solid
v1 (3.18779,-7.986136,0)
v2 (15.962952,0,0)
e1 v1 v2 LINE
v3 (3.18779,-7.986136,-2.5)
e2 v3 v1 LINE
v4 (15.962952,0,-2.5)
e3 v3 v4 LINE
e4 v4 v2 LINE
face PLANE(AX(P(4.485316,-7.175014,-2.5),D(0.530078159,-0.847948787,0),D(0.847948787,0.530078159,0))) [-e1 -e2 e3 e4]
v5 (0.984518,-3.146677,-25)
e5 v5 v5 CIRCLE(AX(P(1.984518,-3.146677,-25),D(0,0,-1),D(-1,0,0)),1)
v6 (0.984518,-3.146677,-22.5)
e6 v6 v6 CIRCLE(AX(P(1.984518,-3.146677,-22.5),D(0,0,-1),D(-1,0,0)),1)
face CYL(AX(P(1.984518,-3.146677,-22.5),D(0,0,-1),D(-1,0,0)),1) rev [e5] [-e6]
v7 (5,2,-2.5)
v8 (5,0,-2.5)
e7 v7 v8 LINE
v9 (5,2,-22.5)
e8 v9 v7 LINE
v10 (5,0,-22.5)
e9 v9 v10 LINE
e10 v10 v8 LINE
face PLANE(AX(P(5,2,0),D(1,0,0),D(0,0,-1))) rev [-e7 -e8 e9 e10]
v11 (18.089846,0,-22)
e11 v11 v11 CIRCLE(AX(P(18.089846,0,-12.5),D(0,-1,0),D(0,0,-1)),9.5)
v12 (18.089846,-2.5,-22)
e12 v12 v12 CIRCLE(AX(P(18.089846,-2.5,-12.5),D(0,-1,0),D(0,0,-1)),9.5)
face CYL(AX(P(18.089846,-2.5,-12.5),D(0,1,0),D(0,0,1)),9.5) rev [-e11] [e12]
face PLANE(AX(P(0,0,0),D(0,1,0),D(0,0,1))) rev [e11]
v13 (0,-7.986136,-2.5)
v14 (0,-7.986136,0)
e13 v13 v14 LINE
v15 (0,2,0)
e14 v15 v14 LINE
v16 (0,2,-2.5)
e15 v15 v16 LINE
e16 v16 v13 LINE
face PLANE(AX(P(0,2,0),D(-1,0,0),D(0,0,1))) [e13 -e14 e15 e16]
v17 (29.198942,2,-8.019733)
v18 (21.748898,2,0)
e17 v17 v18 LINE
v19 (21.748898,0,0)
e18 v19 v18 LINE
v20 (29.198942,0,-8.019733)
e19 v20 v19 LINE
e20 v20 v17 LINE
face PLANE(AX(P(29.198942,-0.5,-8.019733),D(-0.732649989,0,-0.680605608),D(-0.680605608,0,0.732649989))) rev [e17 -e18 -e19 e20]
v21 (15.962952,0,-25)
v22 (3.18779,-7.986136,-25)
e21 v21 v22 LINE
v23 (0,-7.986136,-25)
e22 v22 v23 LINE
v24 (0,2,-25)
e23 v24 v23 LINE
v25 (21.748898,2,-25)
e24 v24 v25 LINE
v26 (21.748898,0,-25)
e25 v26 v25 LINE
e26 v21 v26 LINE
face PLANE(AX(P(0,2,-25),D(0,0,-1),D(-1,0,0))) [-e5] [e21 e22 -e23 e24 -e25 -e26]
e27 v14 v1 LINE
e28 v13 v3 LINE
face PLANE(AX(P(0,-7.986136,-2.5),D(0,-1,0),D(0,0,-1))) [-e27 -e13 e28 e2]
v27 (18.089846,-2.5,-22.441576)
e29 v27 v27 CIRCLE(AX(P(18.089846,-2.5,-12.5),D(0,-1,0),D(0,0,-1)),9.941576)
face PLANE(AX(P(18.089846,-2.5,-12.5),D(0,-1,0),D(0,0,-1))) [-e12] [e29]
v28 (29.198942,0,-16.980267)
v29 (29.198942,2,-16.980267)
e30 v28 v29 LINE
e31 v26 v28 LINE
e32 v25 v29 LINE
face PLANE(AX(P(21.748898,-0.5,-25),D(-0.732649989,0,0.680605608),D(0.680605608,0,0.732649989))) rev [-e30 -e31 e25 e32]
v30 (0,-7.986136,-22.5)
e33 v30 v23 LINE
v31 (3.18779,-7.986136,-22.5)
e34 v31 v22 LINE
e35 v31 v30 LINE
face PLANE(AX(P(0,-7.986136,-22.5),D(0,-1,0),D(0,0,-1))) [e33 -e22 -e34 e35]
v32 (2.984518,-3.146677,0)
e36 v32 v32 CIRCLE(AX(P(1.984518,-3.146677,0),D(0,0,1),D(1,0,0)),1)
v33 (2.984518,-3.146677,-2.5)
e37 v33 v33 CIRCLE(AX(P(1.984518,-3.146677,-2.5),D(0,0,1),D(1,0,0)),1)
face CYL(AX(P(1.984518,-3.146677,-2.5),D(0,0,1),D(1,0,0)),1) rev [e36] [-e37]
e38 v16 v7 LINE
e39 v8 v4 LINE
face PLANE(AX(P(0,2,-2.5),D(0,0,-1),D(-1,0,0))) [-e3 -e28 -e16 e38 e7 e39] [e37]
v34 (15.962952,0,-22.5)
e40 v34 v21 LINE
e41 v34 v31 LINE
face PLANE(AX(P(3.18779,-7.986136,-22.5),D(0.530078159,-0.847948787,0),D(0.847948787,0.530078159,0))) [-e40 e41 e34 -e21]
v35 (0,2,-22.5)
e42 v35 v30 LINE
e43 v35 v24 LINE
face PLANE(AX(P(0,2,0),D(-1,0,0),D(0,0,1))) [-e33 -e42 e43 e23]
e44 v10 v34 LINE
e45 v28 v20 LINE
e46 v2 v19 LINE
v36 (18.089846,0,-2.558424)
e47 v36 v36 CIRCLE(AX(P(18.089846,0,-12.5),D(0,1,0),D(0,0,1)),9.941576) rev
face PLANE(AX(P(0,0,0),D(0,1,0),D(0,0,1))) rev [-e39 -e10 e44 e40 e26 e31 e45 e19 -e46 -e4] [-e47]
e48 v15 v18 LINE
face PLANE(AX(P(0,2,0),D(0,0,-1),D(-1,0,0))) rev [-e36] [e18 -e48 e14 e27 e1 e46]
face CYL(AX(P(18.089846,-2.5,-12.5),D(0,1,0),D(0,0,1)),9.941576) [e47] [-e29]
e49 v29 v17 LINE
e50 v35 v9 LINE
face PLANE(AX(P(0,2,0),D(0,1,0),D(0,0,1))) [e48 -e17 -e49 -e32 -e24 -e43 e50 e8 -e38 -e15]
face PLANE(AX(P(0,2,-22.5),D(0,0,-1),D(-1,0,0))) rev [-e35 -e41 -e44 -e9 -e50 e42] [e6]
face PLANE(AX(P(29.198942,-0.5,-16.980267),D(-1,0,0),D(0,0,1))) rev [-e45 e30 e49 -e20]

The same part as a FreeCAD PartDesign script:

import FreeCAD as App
import Part
import Sketcher

V = App.Vector

doc = App.newDocument("Part")
body = doc.addObject("PartDesign::Body", "Body")

# Sketch on XZ plane
sketch1 = body.newObject("Sketcher::SketchObject", "Sketch")
sketch1.AttachmentSupport = (doc.getObject("XZ_Plane"), [""])
sketch1.MapMode = "FlatFace"
sketch1.addGeometry([
    Part.LineSegment(V(0, -2.5, 0), V(0, 0, 0)),  # 0
    Part.LineSegment(V(0, 0, 0), V(26, 0, 0)),  # 1
    Part.LineSegment(V(26, 0, 0), V(26, -25, 0)),  # 2
    Part.LineSegment(V(26, -25, 0), V(0, -25, 0)),  # 3
    Part.LineSegment(V(0, -25, 0), V(0, -22.5, 0)),  # 4
    Part.LineSegment(V(0, -22.5, 0), V(5, -22.5, 0)),  # 5
    Part.LineSegment(V(5, -22.5, 0), V(5, -2.5, 0)),  # 6
    Part.LineSegment(V(5, -2.5, 0), V(0, -2.5, 0)),  # 7
], False)
sketch1.addConstraint([
    Sketcher.Constraint("Coincident", 0, 2, 1, 1),
    Sketcher.Constraint("Coincident", 1, 2, 2, 1),
    Sketcher.Constraint("Coincident", 2, 2, 3, 1),
    Sketcher.Constraint("Coincident", 3, 2, 4, 1),
    Sketcher.Constraint("Coincident", 4, 2, 5, 1),
    Sketcher.Constraint("Coincident", 5, 2, 6, 1),
    Sketcher.Constraint("Coincident", 6, 2, 7, 1),
    Sketcher.Constraint("Coincident", 7, 2, 0, 1),
    Sketcher.Constraint("Vertical", 0),
    Sketcher.Constraint("Horizontal", 1),
    Sketcher.Constraint("Vertical", 2),
    Sketcher.Constraint("Horizontal", 3),
    Sketcher.Constraint("Vertical", 4),
    Sketcher.Constraint("Horizontal", 5),
    Sketcher.Constraint("Vertical", 6),
    Sketcher.Constraint("Horizontal", 7),
    Sketcher.Constraint("Coincident", 0, 2, -1, 1),
    Sketcher.Constraint("PointOnObject", 3, 2, -2),
    Sketcher.Constraint("Equal", 0, 4),
    Sketcher.Constraint("DistanceX", 1, 1, 1, 2, 26.0),
    Sketcher.Constraint("DistanceX", 5, 1, 5, 2, 5.0),
    Sketcher.Constraint("DistanceY", 2, 2, 2, 1, 25.0),
    Sketcher.Constraint("DistanceY", 6, 1, 6, 2, 20.0),
])
pad1 = body.newObject("PartDesign::Pad", "Pad")
pad1.Profile = sketch1
pad1.Length = 2
pad1.Reversed = True

# Sketch on XZ plane
sketch2 = body.newObject("Sketcher::SketchObject", "Sketch001")
sketch2.AttachmentSupport = (doc.getObject("XZ_Plane"), [""])
sketch2.MapMode = "FlatFace"
sketch2.AttachmentOffset = App.Placement(V(0, 0, -2), App.Rotation())
sketch2.addGeometry([
    Part.LineSegment(V(41, -15, 0), V(26, -25, 0)),
    Part.LineSegment(V(26, -25, 0), V(26, 0, 0)),
    Part.LineSegment(V(26, 0, 0), V(41, -9, 0)),
    Part.LineSegment(V(41, -9, 0), V(41, -15, 0)),
], False)
sketch2.addConstraint([
    Sketcher.Constraint("Coincident", 0, 2, 1, 1),
    Sketcher.Constraint("Coincident", 1, 2, 2, 1),
    Sketcher.Constraint("Coincident", 2, 2, 3, 1),
    Sketcher.Constraint("Coincident", 3, 2, 0, 1),
    Sketcher.Constraint("Vertical", 1),
    Sketcher.Constraint("Vertical", 3),
    Sketcher.Constraint("PointOnObject", 1, 2, -1),
    Sketcher.Constraint("DistanceY", 1, 1, 1, 2, 25.0),
    Sketcher.Constraint("DistanceX", -1, 1, 0, 2, 26.0),
    Sketcher.Constraint("Distance", 0, 17.403092),
    Sketcher.Constraint("Distance", 2, 17.23857),
    Sketcher.Constraint("DistanceY", 3, 2, 3, 1, 6.298017),
])
pad2 = body.newObject("PartDesign::Pad", "Pad001")
pad2.Profile = sketch2
pad2.Length = 2

# Sketch on XY plane
sketch3 = body.newObject("Sketcher::SketchObject", "Sketch002")
sketch3.AttachmentSupport = (doc.getObject("XY_Plane"), [""])
sketch3.MapMode = "FlatFace"
sketch3.addGeometry([
    Part.LineSegment(V(16, 0, 0), V(0, 0, 0)),  # 0
    Part.LineSegment(V(0, 0, 0), V(0, -8, 0)),  # 1
    Part.LineSegment(V(0, -8, 0), V(3.2, -8, 0)),  # 2
    Part.LineSegment(V(3.2, -8, 0), V(16, 0, 0)),  # 3
    Part.Circle(V(2, -4.7, 0), V(0, 0, 1), 1),  # 4
], False)
sketch3.addConstraint([
    Sketcher.Constraint("Coincident", 0, 2, 1, 1),
    Sketcher.Constraint("Coincident", 1, 2, 2, 1),
    Sketcher.Constraint("Coincident", 2, 2, 3, 1),
    Sketcher.Constraint("Coincident", 3, 2, 0, 1),
    Sketcher.Constraint("Horizontal", 0),
    Sketcher.Constraint("Vertical", 1),
    Sketcher.Constraint("Horizontal", 2),
    Sketcher.Constraint("Coincident", 0, 2, -1, 1),
    Sketcher.Constraint("Diameter", 4, 2.0),
    Sketcher.Constraint("DistanceX", 2, 1, 2, 2, 3.18779),
    Sketcher.Constraint("DistanceY", 1, 2, 4, 3, 3.328199),
    Sketcher.Constraint("Distance", 3, 15.06596),
    Sketcher.Constraint("DistanceX", 0, 2, 0, 1, 15.962952),
    Sketcher.Constraint("DistanceX", -1, 1, 4, 3, 1.984518),
])
pad3 = body.newObject("PartDesign::Pad", "Pad002")
pad3.Profile = sketch3
pad3.Length = 2.5
pad3.Reversed = True

# Sketch on XY plane
sketch4 = body.newObject("Sketcher::SketchObject", "Sketch003")
sketch4.AttachmentSupport = (doc.getObject("XY_Plane"), [""])
sketch4.MapMode = "FlatFace"
sketch4.addGeometry(Part.Circle(V(2, -4.7, 0), V(0, 0, 1), 1), False)
sketch4.addConstraint([
    Sketcher.Constraint("Diameter", 0, 2.0),
    Sketcher.Constraint("DistanceX", -1, 1, 0, 3, 1.984518),
    Sketcher.Constraint("DistanceY", 0, 3, -1, 1, 4.657938),
])
pad4 = body.newObject("PartDesign::Pad", "Pad003")
pad4.Profile = sketch4
pad4.Length = 2.5
pad4.Reversed = True

# Sketch on XY plane
sketch5 = body.newObject("Sketcher::SketchObject", "Sketch004")
sketch5.AttachmentSupport = (doc.getObject("XY_Plane"), [""])
sketch5.MapMode = "FlatFace"
sketch5.addGeometry(Part.Circle(V(2, -3.1, 0), V(0, 0, 1), 1), False)
sketch5.addConstraint([
    Sketcher.Constraint("Diameter", 0, 2.0),
    Sketcher.Constraint("DistanceX", -1, 1, 0, 3, 1.984518),
    Sketcher.Constraint("DistanceY", 0, 3, -1, 1, 3.146677),
])
pocket1 = body.newObject("PartDesign::Pocket", "Pocket")
pocket1.Profile = sketch5
pocket1.Length = 2.5

# Sketch on XY plane
sketch6 = body.newObject("Sketcher::SketchObject", "Sketch005")
sketch6.AttachmentSupport = (doc.getObject("XY_Plane"), [""])
sketch6.MapMode = "FlatFace"
sketch6.AttachmentOffset = App.Placement(V(0, 0, -22.5), App.Rotation())
sketch6.addGeometry([
    Part.LineSegment(V(0, -8, 0), V(0, 0, 0)),  # 0
    Part.LineSegment(V(0, 0, 0), V(16, 0, 0)),  # 1
    Part.LineSegment(V(16, 0, 0), V(3.2, -8, 0)),  # 2
    Part.LineSegment(V(3.2, -8, 0), V(0, -8, 0)),  # 3
    Part.Circle(V(2, -3.1, 0), V(0, 0, 1), 1),  # 4
], False)
sketch6.addConstraint([
    Sketcher.Constraint("Coincident", 0, 2, 1, 1),
    Sketcher.Constraint("Coincident", 1, 2, 2, 1),
    Sketcher.Constraint("Coincident", 2, 2, 3, 1),
    Sketcher.Constraint("Coincident", 3, 2, 0, 1),
    Sketcher.Constraint("Vertical", 0),
    Sketcher.Constraint("Horizontal", 1),
    Sketcher.Constraint("Horizontal", 3),
    Sketcher.Constraint("Coincident", 0, 2, -1, 1),
    Sketcher.Constraint("Diameter", 4, 2.0),
    Sketcher.Constraint("DistanceX", 3, 2, 3, 1, 3.18779),
    Sketcher.Constraint("Distance", 2, 15.06596),
    Sketcher.Constraint("DistanceX", 1, 1, 1, 2, 15.962952),
    Sketcher.Constraint("DistanceX", -1, 1, 4, 3, 1.984518),
    Sketcher.Constraint("DistanceY", 2, 2, 4, 3, 4.839459),
])
pad5 = body.newObject("PartDesign::Pad", "Pad004")
pad5.Profile = sketch6
pad5.Length = 2.5
pad5.Reversed = True

# Sketch on XZ plane
sketch7 = body.newObject("Sketcher::SketchObject", "Sketch006")
sketch7.AttachmentSupport = (doc.getObject("XZ_Plane"), [""])
sketch7.MapMode = "FlatFace"
sketch7.AttachmentOffset = App.Placement(V(0, 0, -2), App.Rotation())
sketch7.addGeometry([
    Part.LineSegment(V(21.7, -25, 0), V(29.2, -17, 0)),  # 0
    Part.LineSegment(V(29.2, -17, 0), V(29.2, -8, 0)),  # 1
    Part.LineSegment(V(29.2, -8, 0), V(21.7, 0, 0)),  # 2
    Part.LineSegment(V(21.7, 0, 0), V(26, 0, 0)),  # 3
    Part.LineSegment(V(26, 0, 0), V(40.6, -9.2, 0)),  # 4
    Part.LineSegment(V(40.6, -9.2, 0), V(40.6, -15.5, 0)),  # 5
    Part.LineSegment(V(40.6, -15.5, 0), V(26, -25, 0)),  # 6
    Part.LineSegment(V(26, -25, 0), V(21.7, -25, 0)),  # 7
], False)
sketch7.addConstraint([
    Sketcher.Constraint("Coincident", 0, 2, 1, 1),
    Sketcher.Constraint("Coincident", 1, 2, 2, 1),
    Sketcher.Constraint("Coincident", 2, 2, 3, 1),
    Sketcher.Constraint("Coincident", 3, 2, 4, 1),
    Sketcher.Constraint("Coincident", 4, 2, 5, 1),
    Sketcher.Constraint("Coincident", 5, 2, 6, 1),
    Sketcher.Constraint("Coincident", 6, 2, 7, 1),
    Sketcher.Constraint("Coincident", 7, 2, 0, 1),
    Sketcher.Constraint("Vertical", 1),
    Sketcher.Constraint("Horizontal", 3),
    Sketcher.Constraint("Vertical", 5),
    Sketcher.Constraint("Horizontal", 7),
    Sketcher.Constraint("PointOnObject", 2, 2, -1),
    Sketcher.Constraint("Vertical", 3, 2, 6, 2),
    Sketcher.Constraint("Vertical", 2, 2, 7, 2),
    Sketcher.Constraint("Equal", 0, 2),
    Sketcher.Constraint("DistanceX", -1, 1, 3, 2, 26.0),
    Sketcher.Constraint("DistanceY", 6, 2, -1, 1, 25.0),
    Sketcher.Constraint("Distance", 0, 10.946199),
    Sketcher.Constraint("Distance", 4, 17.23857),
    Sketcher.Constraint("Distance", 6, 17.403092),
    Sketcher.Constraint("DistanceX", 3, 1, 3, 2, 4.251102),
    Sketcher.Constraint("DistanceY", 1, 1, 1, 2, 8.960535),
    Sketcher.Constraint("DistanceY", 5, 2, 5, 1, 6.298017),
])
pocket2 = body.newObject("PartDesign::Pocket", "Pocket001")
pocket2.Profile = sketch7
pocket2.Length = 2.5
pocket2.Reversed = True

# Sketch on XZ plane
sketch8 = body.newObject("Sketcher::SketchObject", "Sketch007")
sketch8.AttachmentSupport = (doc.getObject("XZ_Plane"), [""])
sketch8.MapMode = "FlatFace"
sketch8.addGeometry([
    Part.Circle(V(18, -12, 0), V(0, 0, 1), 10),
    Part.Circle(V(18, -12, 0), V(0, 0, 1), 10),
], False)
sketch8.addConstraint([
    Sketcher.Constraint("Coincident", 1, 3, 0, 3),
    Sketcher.Constraint("Diameter", 1, 19.0),
    Sketcher.Constraint("DistanceY", 0, 3, -1, 1, 12.5),
    Sketcher.Constraint("Diameter", 0, 19.883153),
    Sketcher.Constraint("DistanceX", -1, 1, 0, 3, 18.089846),
])
pad6 = body.newObject("PartDesign::Pad", "Pad005")
pad6.Profile = sketch8
pad6.Length = 2.5

doc.recompute()
